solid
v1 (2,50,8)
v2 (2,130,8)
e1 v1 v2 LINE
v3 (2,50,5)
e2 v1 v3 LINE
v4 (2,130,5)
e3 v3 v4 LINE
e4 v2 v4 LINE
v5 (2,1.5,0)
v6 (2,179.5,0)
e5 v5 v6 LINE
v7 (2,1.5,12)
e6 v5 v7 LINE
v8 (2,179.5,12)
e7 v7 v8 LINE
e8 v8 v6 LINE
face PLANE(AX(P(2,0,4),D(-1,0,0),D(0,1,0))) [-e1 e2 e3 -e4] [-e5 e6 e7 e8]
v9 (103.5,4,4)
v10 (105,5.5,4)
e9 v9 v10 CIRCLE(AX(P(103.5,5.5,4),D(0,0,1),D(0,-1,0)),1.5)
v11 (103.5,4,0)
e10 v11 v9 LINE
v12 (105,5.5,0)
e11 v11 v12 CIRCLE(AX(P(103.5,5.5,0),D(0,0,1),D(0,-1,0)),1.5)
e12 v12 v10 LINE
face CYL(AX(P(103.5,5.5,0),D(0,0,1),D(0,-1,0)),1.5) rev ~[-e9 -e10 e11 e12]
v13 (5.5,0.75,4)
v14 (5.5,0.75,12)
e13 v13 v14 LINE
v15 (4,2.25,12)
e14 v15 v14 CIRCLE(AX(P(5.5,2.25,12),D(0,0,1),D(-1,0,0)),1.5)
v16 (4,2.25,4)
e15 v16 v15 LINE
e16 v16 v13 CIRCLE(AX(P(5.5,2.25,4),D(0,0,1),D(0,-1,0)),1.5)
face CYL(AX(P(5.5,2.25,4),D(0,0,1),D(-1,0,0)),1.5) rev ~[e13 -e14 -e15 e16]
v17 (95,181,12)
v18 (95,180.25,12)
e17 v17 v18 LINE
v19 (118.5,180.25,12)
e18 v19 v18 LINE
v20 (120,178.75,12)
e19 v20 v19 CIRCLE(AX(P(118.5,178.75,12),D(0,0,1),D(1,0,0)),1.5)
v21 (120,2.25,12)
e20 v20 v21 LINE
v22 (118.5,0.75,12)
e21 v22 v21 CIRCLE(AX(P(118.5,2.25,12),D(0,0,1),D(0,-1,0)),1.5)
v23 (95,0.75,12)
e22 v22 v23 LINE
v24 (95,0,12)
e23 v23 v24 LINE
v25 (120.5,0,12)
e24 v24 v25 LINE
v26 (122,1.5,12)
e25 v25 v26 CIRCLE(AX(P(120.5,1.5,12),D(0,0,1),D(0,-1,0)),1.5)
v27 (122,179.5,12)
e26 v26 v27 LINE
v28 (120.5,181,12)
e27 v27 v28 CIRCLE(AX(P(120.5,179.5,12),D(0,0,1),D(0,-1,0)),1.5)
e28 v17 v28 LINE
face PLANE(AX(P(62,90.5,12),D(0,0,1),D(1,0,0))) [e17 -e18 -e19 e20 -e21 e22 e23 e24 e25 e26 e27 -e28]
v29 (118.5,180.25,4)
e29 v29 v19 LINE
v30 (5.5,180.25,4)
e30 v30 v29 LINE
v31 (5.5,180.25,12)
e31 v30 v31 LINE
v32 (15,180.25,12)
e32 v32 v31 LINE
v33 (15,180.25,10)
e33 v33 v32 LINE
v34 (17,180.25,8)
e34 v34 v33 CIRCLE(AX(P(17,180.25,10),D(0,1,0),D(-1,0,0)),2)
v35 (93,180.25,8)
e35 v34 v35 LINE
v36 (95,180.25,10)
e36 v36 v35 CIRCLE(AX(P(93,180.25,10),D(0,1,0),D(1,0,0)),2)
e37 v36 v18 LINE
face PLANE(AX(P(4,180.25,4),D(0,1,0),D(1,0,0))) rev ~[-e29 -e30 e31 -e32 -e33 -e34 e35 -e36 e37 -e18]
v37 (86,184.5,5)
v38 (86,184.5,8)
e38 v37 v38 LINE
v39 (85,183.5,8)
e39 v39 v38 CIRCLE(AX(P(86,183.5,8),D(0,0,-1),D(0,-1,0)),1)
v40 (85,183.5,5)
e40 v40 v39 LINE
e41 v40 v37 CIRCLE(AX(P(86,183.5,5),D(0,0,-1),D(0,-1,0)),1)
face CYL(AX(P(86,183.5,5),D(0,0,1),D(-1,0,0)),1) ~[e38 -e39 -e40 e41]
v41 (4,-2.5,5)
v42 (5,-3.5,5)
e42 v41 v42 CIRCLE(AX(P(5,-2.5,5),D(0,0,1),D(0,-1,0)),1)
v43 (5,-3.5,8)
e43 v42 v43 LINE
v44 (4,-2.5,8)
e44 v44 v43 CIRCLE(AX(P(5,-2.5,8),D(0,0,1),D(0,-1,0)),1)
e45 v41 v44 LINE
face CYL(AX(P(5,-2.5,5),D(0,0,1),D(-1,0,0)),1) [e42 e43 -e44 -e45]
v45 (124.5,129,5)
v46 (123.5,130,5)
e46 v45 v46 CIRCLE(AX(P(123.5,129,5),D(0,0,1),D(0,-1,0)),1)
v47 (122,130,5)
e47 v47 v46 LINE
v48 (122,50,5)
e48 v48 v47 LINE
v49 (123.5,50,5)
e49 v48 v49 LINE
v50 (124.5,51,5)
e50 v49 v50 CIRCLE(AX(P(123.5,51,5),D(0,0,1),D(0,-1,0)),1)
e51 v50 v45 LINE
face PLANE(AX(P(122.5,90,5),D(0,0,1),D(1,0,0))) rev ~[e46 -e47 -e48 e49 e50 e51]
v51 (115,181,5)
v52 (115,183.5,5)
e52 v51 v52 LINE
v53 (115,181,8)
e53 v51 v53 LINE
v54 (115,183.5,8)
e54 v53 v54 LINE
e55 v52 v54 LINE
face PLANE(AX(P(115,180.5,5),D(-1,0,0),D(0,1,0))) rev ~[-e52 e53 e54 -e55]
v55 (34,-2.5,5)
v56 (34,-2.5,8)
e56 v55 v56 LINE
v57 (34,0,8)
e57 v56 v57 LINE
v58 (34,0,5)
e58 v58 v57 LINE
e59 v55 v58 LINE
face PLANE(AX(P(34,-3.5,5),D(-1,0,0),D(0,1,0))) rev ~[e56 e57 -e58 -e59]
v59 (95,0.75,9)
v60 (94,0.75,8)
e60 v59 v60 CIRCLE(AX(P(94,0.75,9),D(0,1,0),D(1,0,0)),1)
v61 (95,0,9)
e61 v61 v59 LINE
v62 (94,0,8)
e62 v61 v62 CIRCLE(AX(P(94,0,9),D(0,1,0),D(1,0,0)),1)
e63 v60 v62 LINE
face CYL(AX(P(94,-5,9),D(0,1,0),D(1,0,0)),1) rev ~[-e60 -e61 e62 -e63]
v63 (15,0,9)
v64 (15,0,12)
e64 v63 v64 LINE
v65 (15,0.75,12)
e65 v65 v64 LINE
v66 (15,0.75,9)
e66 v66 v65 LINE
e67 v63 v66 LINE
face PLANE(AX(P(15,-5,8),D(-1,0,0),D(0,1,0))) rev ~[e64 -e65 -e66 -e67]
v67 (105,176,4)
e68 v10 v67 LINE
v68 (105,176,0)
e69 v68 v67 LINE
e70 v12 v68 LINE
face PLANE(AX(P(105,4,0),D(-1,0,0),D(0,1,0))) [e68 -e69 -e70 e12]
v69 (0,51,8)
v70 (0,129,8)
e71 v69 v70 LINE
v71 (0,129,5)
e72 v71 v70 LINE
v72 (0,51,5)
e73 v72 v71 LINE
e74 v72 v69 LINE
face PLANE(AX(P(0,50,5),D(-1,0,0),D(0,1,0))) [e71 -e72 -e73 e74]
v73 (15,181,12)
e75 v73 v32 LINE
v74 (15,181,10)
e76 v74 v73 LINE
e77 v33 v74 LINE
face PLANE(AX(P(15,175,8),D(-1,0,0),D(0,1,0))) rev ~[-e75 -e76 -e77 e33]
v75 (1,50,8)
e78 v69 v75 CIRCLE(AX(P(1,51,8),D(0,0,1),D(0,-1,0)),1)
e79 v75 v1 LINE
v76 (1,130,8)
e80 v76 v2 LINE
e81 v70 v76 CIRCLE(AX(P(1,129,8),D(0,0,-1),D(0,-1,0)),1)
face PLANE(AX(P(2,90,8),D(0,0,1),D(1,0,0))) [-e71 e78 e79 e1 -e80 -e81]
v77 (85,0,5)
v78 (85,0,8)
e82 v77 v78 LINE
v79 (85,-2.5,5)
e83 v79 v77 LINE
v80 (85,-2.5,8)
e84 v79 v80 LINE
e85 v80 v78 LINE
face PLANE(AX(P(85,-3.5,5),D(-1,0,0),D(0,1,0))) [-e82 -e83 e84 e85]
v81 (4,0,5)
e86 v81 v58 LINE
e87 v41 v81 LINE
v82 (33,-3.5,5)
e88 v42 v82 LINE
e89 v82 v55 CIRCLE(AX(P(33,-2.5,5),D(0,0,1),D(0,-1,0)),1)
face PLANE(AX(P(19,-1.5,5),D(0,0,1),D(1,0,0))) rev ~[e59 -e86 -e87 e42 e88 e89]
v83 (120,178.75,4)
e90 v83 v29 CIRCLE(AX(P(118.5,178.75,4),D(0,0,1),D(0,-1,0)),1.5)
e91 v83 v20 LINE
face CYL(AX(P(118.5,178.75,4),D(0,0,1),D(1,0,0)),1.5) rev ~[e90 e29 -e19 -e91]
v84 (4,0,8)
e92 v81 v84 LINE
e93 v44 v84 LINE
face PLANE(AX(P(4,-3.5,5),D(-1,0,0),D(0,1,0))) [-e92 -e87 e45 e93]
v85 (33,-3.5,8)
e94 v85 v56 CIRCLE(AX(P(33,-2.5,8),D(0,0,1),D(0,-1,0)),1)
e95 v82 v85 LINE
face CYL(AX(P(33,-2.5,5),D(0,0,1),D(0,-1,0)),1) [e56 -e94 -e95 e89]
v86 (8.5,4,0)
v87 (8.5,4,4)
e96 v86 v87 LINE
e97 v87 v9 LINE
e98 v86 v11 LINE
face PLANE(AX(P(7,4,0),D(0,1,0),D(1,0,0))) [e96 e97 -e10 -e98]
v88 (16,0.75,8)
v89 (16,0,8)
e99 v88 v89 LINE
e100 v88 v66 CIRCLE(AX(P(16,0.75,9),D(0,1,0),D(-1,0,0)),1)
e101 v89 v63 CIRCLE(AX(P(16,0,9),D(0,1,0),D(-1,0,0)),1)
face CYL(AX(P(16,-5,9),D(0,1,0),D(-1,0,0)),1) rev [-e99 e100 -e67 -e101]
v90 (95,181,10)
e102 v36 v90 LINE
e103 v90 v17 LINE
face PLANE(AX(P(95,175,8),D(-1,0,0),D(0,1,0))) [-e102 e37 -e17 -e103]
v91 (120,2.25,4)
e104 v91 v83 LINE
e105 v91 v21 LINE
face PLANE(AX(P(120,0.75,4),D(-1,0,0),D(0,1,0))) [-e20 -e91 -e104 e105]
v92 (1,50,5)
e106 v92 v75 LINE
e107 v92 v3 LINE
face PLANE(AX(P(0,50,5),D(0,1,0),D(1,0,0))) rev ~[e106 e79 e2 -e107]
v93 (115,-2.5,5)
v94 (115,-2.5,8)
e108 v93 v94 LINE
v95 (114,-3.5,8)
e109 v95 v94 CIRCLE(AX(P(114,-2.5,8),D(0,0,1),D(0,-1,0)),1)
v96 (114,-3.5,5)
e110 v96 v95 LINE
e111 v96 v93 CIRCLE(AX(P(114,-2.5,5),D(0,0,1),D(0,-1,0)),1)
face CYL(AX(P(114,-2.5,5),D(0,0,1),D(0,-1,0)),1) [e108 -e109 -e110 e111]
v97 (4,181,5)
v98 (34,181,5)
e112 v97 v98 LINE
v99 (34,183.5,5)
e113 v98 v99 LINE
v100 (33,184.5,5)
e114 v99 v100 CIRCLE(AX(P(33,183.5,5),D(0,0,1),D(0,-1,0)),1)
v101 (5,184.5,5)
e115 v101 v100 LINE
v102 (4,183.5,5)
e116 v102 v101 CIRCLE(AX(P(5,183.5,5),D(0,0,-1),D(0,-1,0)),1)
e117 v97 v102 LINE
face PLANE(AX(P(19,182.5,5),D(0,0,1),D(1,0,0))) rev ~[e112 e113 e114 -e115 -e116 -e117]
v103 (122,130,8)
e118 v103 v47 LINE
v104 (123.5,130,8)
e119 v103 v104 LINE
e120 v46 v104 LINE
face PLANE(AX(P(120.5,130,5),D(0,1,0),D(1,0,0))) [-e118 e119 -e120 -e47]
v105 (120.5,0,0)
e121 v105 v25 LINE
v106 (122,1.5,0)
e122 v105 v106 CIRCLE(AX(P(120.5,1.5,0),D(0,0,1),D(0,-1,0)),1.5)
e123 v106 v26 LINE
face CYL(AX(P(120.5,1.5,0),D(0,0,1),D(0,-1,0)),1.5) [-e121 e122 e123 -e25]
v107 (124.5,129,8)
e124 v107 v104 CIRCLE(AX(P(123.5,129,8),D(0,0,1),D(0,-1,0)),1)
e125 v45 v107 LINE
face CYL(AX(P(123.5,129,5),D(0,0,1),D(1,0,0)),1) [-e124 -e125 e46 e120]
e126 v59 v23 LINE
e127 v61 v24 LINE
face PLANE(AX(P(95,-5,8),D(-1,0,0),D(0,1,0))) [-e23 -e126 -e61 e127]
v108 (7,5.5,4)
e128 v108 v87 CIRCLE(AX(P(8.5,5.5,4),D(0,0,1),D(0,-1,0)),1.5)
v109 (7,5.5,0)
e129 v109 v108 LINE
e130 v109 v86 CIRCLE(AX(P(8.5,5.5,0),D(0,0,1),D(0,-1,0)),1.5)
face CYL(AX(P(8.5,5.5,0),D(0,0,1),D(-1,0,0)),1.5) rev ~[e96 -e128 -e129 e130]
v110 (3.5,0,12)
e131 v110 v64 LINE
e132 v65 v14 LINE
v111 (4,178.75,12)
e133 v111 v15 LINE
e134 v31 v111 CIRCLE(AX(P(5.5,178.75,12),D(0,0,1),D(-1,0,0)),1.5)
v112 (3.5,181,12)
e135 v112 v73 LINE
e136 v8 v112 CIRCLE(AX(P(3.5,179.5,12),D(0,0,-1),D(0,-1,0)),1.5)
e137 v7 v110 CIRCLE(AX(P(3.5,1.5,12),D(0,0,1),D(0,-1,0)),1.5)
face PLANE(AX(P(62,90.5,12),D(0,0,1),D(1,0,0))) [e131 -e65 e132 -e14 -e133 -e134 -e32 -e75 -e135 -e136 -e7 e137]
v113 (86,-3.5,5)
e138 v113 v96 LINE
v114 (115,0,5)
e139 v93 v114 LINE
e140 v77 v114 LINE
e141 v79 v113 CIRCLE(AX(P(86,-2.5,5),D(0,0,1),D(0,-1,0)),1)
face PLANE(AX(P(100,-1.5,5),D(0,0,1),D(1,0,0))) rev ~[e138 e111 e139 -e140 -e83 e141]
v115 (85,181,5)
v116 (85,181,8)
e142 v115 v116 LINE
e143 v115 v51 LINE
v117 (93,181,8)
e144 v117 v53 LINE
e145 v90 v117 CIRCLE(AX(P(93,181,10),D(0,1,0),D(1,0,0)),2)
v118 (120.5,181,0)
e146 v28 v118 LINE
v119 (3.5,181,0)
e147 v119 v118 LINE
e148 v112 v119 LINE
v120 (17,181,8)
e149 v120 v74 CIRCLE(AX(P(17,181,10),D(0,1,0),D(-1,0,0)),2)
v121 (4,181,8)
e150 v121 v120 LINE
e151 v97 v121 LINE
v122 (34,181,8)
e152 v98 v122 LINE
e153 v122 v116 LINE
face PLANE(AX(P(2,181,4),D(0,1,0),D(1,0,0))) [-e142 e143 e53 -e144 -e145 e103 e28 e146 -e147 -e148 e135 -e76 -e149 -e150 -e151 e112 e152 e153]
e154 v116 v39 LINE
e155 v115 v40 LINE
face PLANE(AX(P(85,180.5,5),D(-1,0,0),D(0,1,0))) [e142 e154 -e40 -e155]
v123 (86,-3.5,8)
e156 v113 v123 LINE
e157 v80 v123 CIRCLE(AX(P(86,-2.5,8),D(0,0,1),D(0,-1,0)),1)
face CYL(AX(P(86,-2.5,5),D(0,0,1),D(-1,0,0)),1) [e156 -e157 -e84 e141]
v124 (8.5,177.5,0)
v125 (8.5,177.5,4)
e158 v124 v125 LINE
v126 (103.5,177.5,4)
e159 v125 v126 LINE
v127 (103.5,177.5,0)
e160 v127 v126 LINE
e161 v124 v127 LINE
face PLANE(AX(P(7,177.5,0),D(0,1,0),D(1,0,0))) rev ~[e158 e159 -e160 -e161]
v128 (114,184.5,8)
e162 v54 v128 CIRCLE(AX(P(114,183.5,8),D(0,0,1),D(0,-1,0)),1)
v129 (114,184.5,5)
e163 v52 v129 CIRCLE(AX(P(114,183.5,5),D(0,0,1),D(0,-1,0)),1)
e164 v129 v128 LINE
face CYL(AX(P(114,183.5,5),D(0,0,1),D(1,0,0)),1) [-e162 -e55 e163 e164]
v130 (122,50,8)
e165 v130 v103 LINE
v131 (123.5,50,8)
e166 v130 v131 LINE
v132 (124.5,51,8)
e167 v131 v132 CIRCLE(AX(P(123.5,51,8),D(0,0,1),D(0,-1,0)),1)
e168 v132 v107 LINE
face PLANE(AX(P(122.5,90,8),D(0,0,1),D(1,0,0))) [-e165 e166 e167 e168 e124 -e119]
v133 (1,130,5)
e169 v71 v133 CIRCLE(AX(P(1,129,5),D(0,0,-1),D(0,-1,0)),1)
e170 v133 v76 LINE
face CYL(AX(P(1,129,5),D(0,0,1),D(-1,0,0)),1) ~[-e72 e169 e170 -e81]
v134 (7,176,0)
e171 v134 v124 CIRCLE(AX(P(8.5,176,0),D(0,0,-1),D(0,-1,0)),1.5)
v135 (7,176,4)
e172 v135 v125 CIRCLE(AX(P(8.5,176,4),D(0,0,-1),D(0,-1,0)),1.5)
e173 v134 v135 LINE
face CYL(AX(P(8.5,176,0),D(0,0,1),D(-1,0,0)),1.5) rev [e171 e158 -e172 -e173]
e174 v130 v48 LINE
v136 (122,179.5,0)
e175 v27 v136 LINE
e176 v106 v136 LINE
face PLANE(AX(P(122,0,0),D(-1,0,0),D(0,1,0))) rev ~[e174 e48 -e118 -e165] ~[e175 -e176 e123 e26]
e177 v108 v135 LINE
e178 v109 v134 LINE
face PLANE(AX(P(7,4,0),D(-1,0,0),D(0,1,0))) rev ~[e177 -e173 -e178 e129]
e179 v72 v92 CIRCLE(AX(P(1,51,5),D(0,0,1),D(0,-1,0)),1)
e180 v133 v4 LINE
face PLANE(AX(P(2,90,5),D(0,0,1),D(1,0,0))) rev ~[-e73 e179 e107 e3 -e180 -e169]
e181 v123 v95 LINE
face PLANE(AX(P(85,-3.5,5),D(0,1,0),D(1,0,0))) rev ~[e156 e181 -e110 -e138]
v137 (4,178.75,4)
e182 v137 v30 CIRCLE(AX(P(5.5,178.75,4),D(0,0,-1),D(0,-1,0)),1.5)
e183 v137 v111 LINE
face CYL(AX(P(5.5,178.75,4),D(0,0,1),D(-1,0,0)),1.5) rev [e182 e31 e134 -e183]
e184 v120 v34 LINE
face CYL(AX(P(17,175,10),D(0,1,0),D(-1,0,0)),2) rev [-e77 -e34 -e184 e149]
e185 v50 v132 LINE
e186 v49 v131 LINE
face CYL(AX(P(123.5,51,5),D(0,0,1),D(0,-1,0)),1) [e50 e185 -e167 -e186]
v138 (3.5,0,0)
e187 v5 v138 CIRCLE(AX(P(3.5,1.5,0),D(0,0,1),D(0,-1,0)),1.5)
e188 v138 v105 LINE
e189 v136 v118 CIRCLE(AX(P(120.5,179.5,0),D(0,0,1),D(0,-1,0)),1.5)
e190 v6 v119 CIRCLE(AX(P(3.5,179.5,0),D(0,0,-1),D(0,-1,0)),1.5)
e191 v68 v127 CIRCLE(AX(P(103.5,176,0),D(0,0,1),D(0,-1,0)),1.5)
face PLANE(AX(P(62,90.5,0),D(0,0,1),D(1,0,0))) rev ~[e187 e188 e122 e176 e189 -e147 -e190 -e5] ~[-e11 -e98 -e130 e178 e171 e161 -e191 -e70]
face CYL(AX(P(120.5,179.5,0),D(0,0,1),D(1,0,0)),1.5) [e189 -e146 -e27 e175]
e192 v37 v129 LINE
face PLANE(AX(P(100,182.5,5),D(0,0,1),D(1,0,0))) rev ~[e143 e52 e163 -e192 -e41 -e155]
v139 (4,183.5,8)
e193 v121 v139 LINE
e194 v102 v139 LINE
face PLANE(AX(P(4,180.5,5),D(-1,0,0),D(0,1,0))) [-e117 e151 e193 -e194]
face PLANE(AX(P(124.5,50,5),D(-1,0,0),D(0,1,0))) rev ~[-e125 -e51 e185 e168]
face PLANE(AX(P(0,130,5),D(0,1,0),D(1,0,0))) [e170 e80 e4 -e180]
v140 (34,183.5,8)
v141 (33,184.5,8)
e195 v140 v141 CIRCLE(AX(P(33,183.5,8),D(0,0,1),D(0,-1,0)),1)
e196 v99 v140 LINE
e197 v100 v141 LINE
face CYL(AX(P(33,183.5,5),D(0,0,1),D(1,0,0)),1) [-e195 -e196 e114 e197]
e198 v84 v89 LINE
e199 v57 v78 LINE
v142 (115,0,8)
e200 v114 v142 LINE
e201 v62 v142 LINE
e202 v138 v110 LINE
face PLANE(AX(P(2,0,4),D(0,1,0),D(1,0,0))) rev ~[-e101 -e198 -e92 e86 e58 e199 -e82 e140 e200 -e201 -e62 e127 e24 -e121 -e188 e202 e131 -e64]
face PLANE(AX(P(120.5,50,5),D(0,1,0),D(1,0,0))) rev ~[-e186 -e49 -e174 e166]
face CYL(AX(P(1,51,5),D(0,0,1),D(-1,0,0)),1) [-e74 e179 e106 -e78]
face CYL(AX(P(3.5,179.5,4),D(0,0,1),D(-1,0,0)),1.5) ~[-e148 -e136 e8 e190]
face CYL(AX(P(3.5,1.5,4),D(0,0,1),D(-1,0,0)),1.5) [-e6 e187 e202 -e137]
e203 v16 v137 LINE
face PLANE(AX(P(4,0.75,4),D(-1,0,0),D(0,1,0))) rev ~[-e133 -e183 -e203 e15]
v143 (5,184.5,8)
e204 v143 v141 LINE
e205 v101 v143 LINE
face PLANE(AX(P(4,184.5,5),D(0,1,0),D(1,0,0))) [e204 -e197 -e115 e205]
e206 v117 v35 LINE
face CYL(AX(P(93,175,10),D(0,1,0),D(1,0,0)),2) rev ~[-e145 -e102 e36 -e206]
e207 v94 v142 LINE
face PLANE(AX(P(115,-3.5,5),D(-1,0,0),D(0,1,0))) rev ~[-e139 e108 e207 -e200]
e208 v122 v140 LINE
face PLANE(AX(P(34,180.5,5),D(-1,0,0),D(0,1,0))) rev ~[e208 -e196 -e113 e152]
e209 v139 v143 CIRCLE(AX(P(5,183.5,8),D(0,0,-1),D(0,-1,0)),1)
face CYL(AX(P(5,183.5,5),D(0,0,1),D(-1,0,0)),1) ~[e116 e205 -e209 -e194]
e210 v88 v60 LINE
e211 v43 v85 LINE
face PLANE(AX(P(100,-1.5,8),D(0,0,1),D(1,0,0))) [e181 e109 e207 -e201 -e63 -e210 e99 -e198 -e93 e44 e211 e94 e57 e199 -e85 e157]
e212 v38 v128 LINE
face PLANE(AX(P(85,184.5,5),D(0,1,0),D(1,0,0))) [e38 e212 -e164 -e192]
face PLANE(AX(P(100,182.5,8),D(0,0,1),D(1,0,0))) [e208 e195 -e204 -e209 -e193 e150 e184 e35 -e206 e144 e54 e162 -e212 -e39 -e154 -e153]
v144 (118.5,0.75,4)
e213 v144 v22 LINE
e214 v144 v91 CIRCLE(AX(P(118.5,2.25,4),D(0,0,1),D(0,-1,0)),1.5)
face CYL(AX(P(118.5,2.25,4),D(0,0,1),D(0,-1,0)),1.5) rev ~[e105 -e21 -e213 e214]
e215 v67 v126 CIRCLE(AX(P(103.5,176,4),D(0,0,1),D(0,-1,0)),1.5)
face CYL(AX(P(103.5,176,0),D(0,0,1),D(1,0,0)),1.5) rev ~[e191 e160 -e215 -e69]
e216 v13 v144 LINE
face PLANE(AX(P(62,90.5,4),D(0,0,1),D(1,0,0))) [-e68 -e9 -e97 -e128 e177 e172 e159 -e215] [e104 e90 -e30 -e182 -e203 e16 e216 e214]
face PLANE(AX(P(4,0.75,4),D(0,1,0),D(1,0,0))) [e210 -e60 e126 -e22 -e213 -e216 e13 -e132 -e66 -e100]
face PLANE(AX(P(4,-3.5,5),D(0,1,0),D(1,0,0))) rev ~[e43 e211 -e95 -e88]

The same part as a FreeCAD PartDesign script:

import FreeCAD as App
import Part
import Sketcher


def edges_at(feature, points):
    """Names of the edges that pass closest to the given points."""
    edges = feature.Shape.Edges
    near = lambda p: min(range(len(edges)), key=lambda i: edges[i].distToShape(Part.Vertex(*p))[0])
    return sorted({f"Edge{near(p) + 1}" for p in points})

doc = App.newDocument("Part")
body = doc.addObject("PartDesign::Body", "Body")

# Sketch on XY plane
sketch1 = body.newObject("Sketcher::SketchObject", "Sketch")
sketch1.AttachmentSupport = (doc.getObject("XY_Plane"), [""])
sketch1.MapMode = "FlatFace"
sketch1.AttachmentOffset = App.Placement(App.Vector(0, 0, 5), App.Rotation())
sketch1.addGeometry(Part.LineSegment(App.Vector(0, 130, 0), App.Vector(0, 50, 0)), False)
sketch1.addGeometry(Part.LineSegment(App.Vector(0, 50, 0), App.Vector(4, 50, 0)), False)
sketch1.addGeometry(Part.LineSegment(App.Vector(4, 50, 0), App.Vector(4, 130, 0)), False)
sketch1.addGeometry(Part.LineSegment(App.Vector(4, 130, 0), App.Vector(0, 130, 0)), False)
sketch1.addConstraint(Sketcher.Constraint("Coincident", 0, 2, 1, 1))
sketch1.addConstraint(Sketcher.Constraint("Coincident", 1, 2, 2, 1))
sketch1.addConstraint(Sketcher.Constraint("Coincident", 2, 2, 3, 1))
sketch1.addConstraint(Sketcher.Constraint("Coincident", 3, 2, 0, 1))
sketch1.addConstraint(Sketcher.Constraint("Vertical", 0))
sketch1.addConstraint(Sketcher.Constraint("Horizontal", 1))
sketch1.addConstraint(Sketcher.Constraint("Vertical", 2))
sketch1.addConstraint(Sketcher.Constraint("Horizontal", 3))
sketch1.addConstraint(Sketcher.Constraint("PointOnObject", 0, 2, -2))
sketch1.addConstraint(Sketcher.Constraint("DistanceX", 1, 1, 1, 2, 4.0))
sketch1.addConstraint(Sketcher.Constraint("DistanceY", 0, 2, 0, 1, 80.0))
sketch1.addConstraint(Sketcher.Constraint("DistanceY", -1, 1, 0, 2, 50.0))
pad1 = body.newObject("PartDesign::Pad", "Pad")
pad1.Profile = sketch1
pad1.Length = 3
doc.recompute()

fillet = body.newObject("PartDesign::Fillet", "Fillet")
fillet.Base = (pad1, edges_at(pad1, [(0, 50, 6.5), (0, 130, 6.5)]))
fillet.Radius = 1
body2 = doc.addObject("PartDesign::Body", "Body001")

# Sketch on XY plane
sketch2 = body2.newObject("Sketcher::SketchObject", "Sketch001")
sketch2.AttachmentSupport = (doc.getObject("XY_Plane001"), [""])
sketch2.MapMode = "FlatFace"
sketch2.AttachmentOffset = App.Placement(App.Vector(0, 0, 5), App.Rotation())
sketch2.addGeometry(Part.LineSegment(App.Vector(85, 0.5, 0), App.Vector(85, -3.5, 0)), False)
sketch2.addGeometry(Part.LineSegment(App.Vector(85, -3.5, 0), App.Vector(115, -3.5, 0)), False)
sketch2.addGeometry(Part.LineSegment(App.Vector(115, -3.5, 0), App.Vector(115, 0.5, 0)), False)
sketch2.addGeometry(Part.LineSegment(App.Vector(115, 0.5, 0), App.Vector(85, 0.5, 0)), False)
sketch2.addConstraint(Sketcher.Constraint("Coincident", 0, 2, 1, 1))
sketch2.addConstraint(Sketcher.Constraint("Coincident", 1, 2, 2, 1))
sketch2.addConstraint(Sketcher.Constraint("Coincident", 2, 2, 3, 1))
sketch2.addConstraint(Sketcher.Constraint("Coincident", 3, 2, 0, 1))
sketch2.addConstraint(Sketcher.Constraint("Vertical", 0))
sketch2.addConstraint(Sketcher.Constraint("Horizontal", 1))
sketch2.addConstraint(Sketcher.Constraint("Vertical", 2))
sketch2.addConstraint(Sketcher.Constraint("Horizontal", 3))
sketch2.addConstraint(Sketcher.Constraint("DistanceX", 1, 1, 1, 2, 30.0))
sketch2.addConstraint(Sketcher.Constraint("DistanceY", 0, 2, 0, 1, 4.0))
sketch2.addConstraint(Sketcher.Constraint("DistanceX", -1, 1, 0, 2, 85.0))
sketch2.addConstraint(Sketcher.Constraint("DistanceY", 0, 2, -1, 1, 3.5))
pad2 = body2.newObject("PartDesign::Pad", "Pad001")
pad2.Profile = sketch2
pad2.Length = 3
doc.recompute()

fillet2 = body2.newObject("PartDesign::Fillet", "Fillet001")
fillet2.Base = (pad2, edges_at(pad2, [(85, -3.5, 6.5), (115, -3.5, 6.5)]))
fillet2.Radius = 1
body3 = doc.addObject("PartDesign::Body", "Body002")

# Sketch on XY plane
sketch3 = body3.newObject("Sketcher::SketchObject", "Sketch002")
sketch3.AttachmentSupport = (doc.getObject("XY_Plane002"), [""])
sketch3.MapMode = "FlatFace"
sketch3.AttachmentOffset = App.Placement(App.Vector(0, 0, 5), App.Rotation())
sketch3.addGeometry(Part.LineSegment(App.Vector(4, 184.5, 0), App.Vector(4, 180.5, 0)), False)
sketch3.addGeometry(Part.LineSegment(App.Vector(4, 180.5, 0), App.Vector(34, 180.5, 0)), False)
sketch3.addGeometry(Part.LineSegment(App.Vector(34, 180.5, 0), App.Vector(34, 184.5, 0)), False)
sketch3.addGeometry(Part.LineSegment(App.Vector(34, 184.5, 0), App.Vector(4, 184.5, 0)), False)
sketch3.addConstraint(Sketcher.Constraint("Coincident", 0, 2, 1, 1))
sketch3.addConstraint(Sketcher.Constraint("Coincident", 1, 2, 2, 1))
sketch3.addConstraint(Sketcher.Constraint("Coincident", 2, 2, 3, 1))
sketch3.addConstraint(Sketcher.Constraint("Coincident", 3, 2, 0, 1))
sketch3.addConstraint(Sketcher.Constraint("Vertical", 0))
sketch3.addConstraint(Sketcher.Constraint("Horizontal", 1))
sketch3.addConstraint(Sketcher.Constraint("Vertical", 2))
sketch3.addConstraint(Sketcher.Constraint("Horizontal", 3))
sketch3.addConstraint(Sketcher.Constraint("DistanceX", 1, 1, 1, 2, 30.0))
sketch3.addConstraint(Sketcher.Constraint("DistanceY", 0, 2, 0, 1, 4.0))
sketch3.addConstraint(Sketcher.Constraint("DistanceX", -1, 1, 0, 2, 4.0))
sketch3.addConstraint(Sketcher.Constraint("DistanceY", -1, 1, 0, 2, 180.5))
pad3 = body3.newObject("PartDesign::Pad", "Pad002")
pad3.Profile = sketch3
pad3.Length = 3
doc.recompute()

fillet3 = body3.newObject("PartDesign::Fillet", "Fillet002")
fillet3.Base = (pad3, edges_at(pad3, [(4, 184.5, 6.5), (34, 184.5, 6.5)]))
fillet3.Radius = 1
body4 = doc.addObject("PartDesign::Body", "Body003")

# Sketch on XY plane
sketch4 = body4.newObject("Sketcher::SketchObject", "Sketch003")
sketch4.AttachmentSupport = (doc.getObject("XY_Plane003"), [""])
sketch4.MapMode = "FlatFace"
sketch4.AttachmentOffset = App.Placement(App.Vector(0, 0, 5), App.Rotation())
sketch4.addGeometry(Part.LineSegment(App.Vector(85, 184.5, 0), App.Vector(85, 180.5, 0)), False)
sketch4.addGeometry(Part.LineSegment(App.Vector(85, 180.5, 0), App.Vector(115, 180.5, 0)), False)
sketch4.addGeometry(Part.LineSegment(App.Vector(115, 180.5, 0), App.Vector(115, 184.5, 0)), False)
sketch4.addGeometry(Part.LineSegment(App.Vector(115, 184.5, 0), App.Vector(85, 184.5, 0)), False)
sketch4.addConstraint(Sketcher.Constraint("Coincident", 0, 2, 1, 1))
sketch4.addConstraint(Sketcher.Constraint("Coincident", 1, 2, 2, 1))
sketch4.addConstraint(Sketcher.Constraint("Coincident", 2, 2, 3, 1))
sketch4.addConstraint(Sketcher.Constraint("Coincident", 3, 2, 0, 1))
sketch4.addConstraint(Sketcher.Constraint("Vertical", 0))
sketch4.addConstraint(Sketcher.Constraint("Horizontal", 1))
sketch4.addConstraint(Sketcher.Constraint("Vertical", 2))
sketch4.addConstraint(Sketcher.Constraint("Horizontal", 3))
sketch4.addConstraint(Sketcher.Constraint("DistanceX", 1, 1, 1, 2, 30.0))
sketch4.addConstraint(Sketcher.Constraint("DistanceY", 0, 2, 0, 1, 4.0))
sketch4.addConstraint(Sketcher.Constraint("DistanceX", -1, 1, 0, 2, 85.0))
sketch4.addConstraint(Sketcher.Constraint("DistanceY", -1, 1, 0, 2, 180.5))
pad4 = body4.newObject("PartDesign::Pad", "Pad003")
pad4.Profile = sketch4
pad4.Length = 3
doc.recompute()

fillet4 = body4.newObject("PartDesign::Fillet", "Fillet003")
fillet4.Base = (pad4, edges_at(pad4, [(85, 184.5, 6.5), (115, 184.5, 6.5)]))
fillet4.Radius = 1
body5 = doc.addObject("PartDesign::Body", "Body004")

# Sketch on XY plane
sketch5 = body5.newObject("Sketcher::SketchObject", "Sketch004")
sketch5.AttachmentSupport = (doc.getObject("XY_Plane004"), [""])
sketch5.MapMode = "FlatFace"
sketch5.AttachmentOffset = App.Placement(App.Vector(0, 0, 5), App.Rotation())
sketch5.addGeometry(Part.LineSegment(App.Vector(120.5, 130, 0), App.Vector(120.5, 50, 0)), False)
sketch5.addGeometry(Part.LineSegment(App.Vector(120.5, 50, 0), App.Vector(124.5, 50, 0)), False)
sketch5.addGeometry(Part.LineSegment(App.Vector(124.5, 50, 0), App.Vector(124.5, 130, 0)), False)
sketch5.addGeometry(Part.LineSegment(App.Vector(124.5, 130, 0), App.Vector(120.5, 130, 0)), False)
sketch5.addConstraint(Sketcher.Constraint("Coincident", 0, 2, 1, 1))
sketch5.addConstraint(Sketcher.Constraint("Coincident", 1, 2, 2, 1))
sketch5.addConstraint(Sketcher.Constraint("Coincident", 2, 2, 3, 1))
sketch5.addConstraint(Sketcher.Constraint("Coincident", 3, 2, 0, 1))
sketch5.addConstraint(Sketcher.Constraint("Vertical", 0))
sketch5.addConstraint(Sketcher.Constraint("Horizontal", 1))
sketch5.addConstraint(Sketcher.Constraint("Vertical", 2))
sketch5.addConstraint(Sketcher.Constraint("Horizontal", 3))
sketch5.addConstraint(Sketcher.Constraint("DistanceX", 1, 1, 1, 2, 4.0))
sketch5.addConstraint(Sketcher.Constraint("DistanceY", 0, 2, 0, 1, 80.0))
sketch5.addConstraint(Sketcher.Constraint("DistanceY", -1, 1, 0, 2, 50.0))
sketch5.addConstraint(Sketcher.Constraint("DistanceX", -1, 1, 0, 2, 120.5))
pad5 = body5.newObject("PartDesign::Pad", "Pad004")
pad5.Profile = sketch5
pad5.Length = 3
doc.recompute()

fillet5 = body5.newObject("PartDesign::Fillet", "Fillet004")
fillet5.Base = (pad5, edges_at(pad5, [(124.5, 50, 6.5), (124.5, 130, 6.5)]))
fillet5.Radius = 1
body6 = doc.addObject("PartDesign::Body", "Body005")
body6.AllowCompound = True

# Sketch on XY plane
sketch6 = body6.newObject("Sketcher::SketchObject", "Sketch005")
sketch6.AttachmentSupport = (doc.getObject("XY_Plane005"), [""])
sketch6.MapMode = "FlatFace"
sketch6.AttachmentOffset = App.Placement(App.Vector(0, 0, 5), App.Rotation())
sketch6.addGeometry(Part.LineSegment(App.Vector(4, 0.5, 0), App.Vector(4, -3.5, 0)), False)
sketch6.addGeometry(Part.LineSegment(App.Vector(4, -3.5, 0), App.Vector(34, -3.5, 0)), False)
sketch6.addGeometry(Part.LineSegment(App.Vector(34, -3.5, 0), App.Vector(34, 0.5, 0)), False)
sketch6.addGeometry(Part.LineSegment(App.Vector(34, 0.5, 0), App.Vector(4, 0.5, 0)), False)
sketch6.addConstraint(Sketcher.Constraint("Coincident", 0, 2, 1, 1))
sketch6.addConstraint(Sketcher.Constraint("Coincident", 1, 2, 2, 1))
sketch6.addConstraint(Sketcher.Constraint("Coincident", 2, 2, 3, 1))
sketch6.addConstraint(Sketcher.Constraint("Coincident", 3, 2, 0, 1))
sketch6.addConstraint(Sketcher.Constraint("Vertical", 0))
sketch6.addConstraint(Sketcher.Constraint("Horizontal", 1))
sketch6.addConstraint(Sketcher.Constraint("Vertical", 2))
sketch6.addConstraint(Sketcher.Constraint("Horizontal", 3))
sketch6.addConstraint(Sketcher.Constraint("DistanceX", 1, 1, 1, 2, 30.0))
sketch6.addConstraint(Sketcher.Constraint("DistanceY", 0, 2, 0, 1, 4.0))
sketch6.addConstraint(Sketcher.Constraint("DistanceX", -1, 1, 0, 2, 4.0))
sketch6.addConstraint(Sketcher.Constraint("DistanceY", 0, 2, -1, 1, 3.5))
pad6 = body6.newObject("PartDesign::Pad", "Pad005")
pad6.Profile = sketch6
pad6.Length = 3
doc.recompute()

fillet6 = body6.newObject("PartDesign::Fillet", "Fillet005")
fillet6.Base = (pad6, edges_at(pad6, [(4, -3.5, 6.5), (34, -3.5, 6.5)]))
fillet6.Radius = 1
doc.recompute()

boolean = body6.newObject("PartDesign::Boolean", "Boolean")
boolean.Type = "Fuse"
boolean.addObjects([body])
doc.recompute()

boolean2 = body6.newObject("PartDesign::Boolean", "Boolean001")
boolean2.Type = "Fuse"
boolean2.addObjects([body2])
doc.recompute()

boolean3 = body6.newObject("PartDesign::Boolean", "Boolean002")
boolean3.Type = "Fuse"
boolean3.addObjects([body3])
doc.recompute()

boolean4 = body6.newObject("PartDesign::Boolean", "Boolean003")
boolean4.Type = "Fuse"
boolean4.addObjects([body4])
doc.recompute()

boolean5 = body6.newObject("PartDesign::Boolean", "Boolean004")
boolean5.Type = "Fuse"
boolean5.addObjects([body5])
body7 = doc.addObject("PartDesign::Body", "Body006")

# Sketch on XY plane
sketch7 = body7.newObject("Sketcher::SketchObject", "Sketch006")
sketch7.AttachmentSupport = (doc.getObject("XY_Plane006"), [""])
sketch7.MapMode = "FlatFace"
sketch7.addGeometry(Part.LineSegment(App.Vector(15, 5, 0), App.Vector(15, -5, 0)), False)
sketch7.addGeometry(Part.LineSegment(App.Vector(15, -5, 0), App.Vector(95, -5, 0)), False)
sketch7.addGeometry(Part.LineSegment(App.Vector(95, -5, 0), App.Vector(95, 5, 0)), False)
sketch7.addGeometry(Part.LineSegment(App.Vector(95, 5, 0), App.Vector(15, 5, 0)), False)
sketch7.addConstraint(Sketcher.Constraint("Coincident", 0, 2, 1, 1))
sketch7.addConstraint(Sketcher.Constraint("Coincident", 1, 2, 2, 1))
sketch7.addConstraint(Sketcher.Constraint("Coincident", 2, 2, 3, 1))
sketch7.addConstraint(Sketcher.Constraint("Coincident", 3, 2, 0, 1))
sketch7.addConstraint(Sketcher.Constraint("Vertical", 0))
sketch7.addConstraint(Sketcher.Constraint("Horizontal", 1))
sketch7.addConstraint(Sketcher.Constraint("Vertical", 2))
sketch7.addConstraint(Sketcher.Constraint("Horizontal", 3))
sketch7.addConstraint(Sketcher.Constraint("DistanceX", 1, 1, 1, 2, 80.0))
sketch7.addConstraint(Sketcher.Constraint("DistanceY", 0, 2, 0, 1, 10.0))
sketch7.addConstraint(Sketcher.Constraint("DistanceX", -1, 1, 0, 2, 15.0))
sketch7.addConstraint(Sketcher.Constraint("DistanceY", 0, 2, -1, 1, 5.0))
pad7 = body7.newObject("PartDesign::Pad", "Pad006")
pad7.Profile = sketch7
pad7.Length = 10
body8 = doc.addObject("PartDesign::Body", "Body007")
body8.AllowCompound = True

# Sketch on XY plane
sketch8 = body8.newObject("Sketcher::SketchObject", "Sketch007")
sketch8.AttachmentSupport = (doc.getObject("XY_Plane007"), [""])
sketch8.MapMode = "FlatFace"
sketch8.addGeometry(Part.LineSegment(App.Vector(15, 185, 0), App.Vector(15, 175, 0)), False)
sketch8.addGeometry(Part.LineSegment(App.Vector(15, 175, 0), App.Vector(95, 175, 0)), False)
sketch8.addGeometry(Part.LineSegment(App.Vector(95, 175, 0), App.Vector(95, 185, 0)), False)
sketch8.addGeometry(Part.LineSegment(App.Vector(95, 185, 0), App.Vector(15, 185, 0)), False)
sketch8.addConstraint(Sketcher.Constraint("Coincident", 0, 2, 1, 1))
sketch8.addConstraint(Sketcher.Constraint("Coincident", 1, 2, 2, 1))
sketch8.addConstraint(Sketcher.Constraint("Coincident", 2, 2, 3, 1))
sketch8.addConstraint(Sketcher.Constraint("Coincident", 3, 2, 0, 1))
sketch8.addConstraint(Sketcher.Constraint("Vertical", 0))
sketch8.addConstraint(Sketcher.Constraint("Horizontal", 1))
sketch8.addConstraint(Sketcher.Constraint("Vertical", 2))
sketch8.addConstraint(Sketcher.Constraint("Horizontal", 3))
sketch8.addConstraint(Sketcher.Constraint("DistanceX", 1, 1, 1, 2, 80.0))
sketch8.addConstraint(Sketcher.Constraint("DistanceY", 0, 2, 0, 1, 10.0))
sketch8.addConstraint(Sketcher.Constraint("DistanceX", -1, 1, 0, 2, 15.0))
sketch8.addConstraint(Sketcher.Constraint("DistanceY", -1, 1, 0, 2, 175.0))
pad8 = body8.newObject("PartDesign::Pad", "Pad007")
pad8.Profile = sketch8
pad8.Length = 10
doc.recompute()

boolean6 = body8.newObject("PartDesign::Boolean", "Boolean005")
boolean6.Type = "Fuse"
boolean6.addObjects([body7])
body9 = doc.addObject("PartDesign::Body", "Body008")
body9.AllowCompound = True
doc.recompute()

body8.Placement = App.Placement(App.Vector(0, 0, 8), App.Rotation(App.Vector(0, 0, 1), 0))
boolean7 = body9.newObject("PartDesign::Boolean", "Boolean006")
boolean7.Type = "Fuse"
boolean7.addObjects([body8])
doc.recompute()

fillet7 = body9.newObject("PartDesign::Fillet", "Fillet006")
fillet7.Base = (boolean7, edges_at(boolean7, [(15, 180, 8), (95, 180, 8)]))
fillet7.Radius = 2
doc.recompute()

fillet8 = body9.newObject("PartDesign::Fillet", "Fillet007")
fillet8.Base = (fillet7, edges_at(fillet7, [(15, 0, 8), (95, 0, 8)]))
fillet8.Radius = 1
body10 = doc.addObject("PartDesign::Body", "Body009")

# Sketch on XY plane
sketch9 = body10.newObject("Sketcher::SketchObject", "Sketch008")
sketch9.AttachmentSupport = (doc.getObject("XY_Plane009"), [""])
sketch9.MapMode = "FlatFace"
sketch9.AttachmentOffset = App.Placement(App.Vector(0, 0, 4), App.Rotation())
sketch9.addGeometry(Part.LineSegment(App.Vector(4, 180, 0), App.Vector(4, 1, 0)), False)
sketch9.addGeometry(Part.LineSegment(App.Vector(4, 1, 0), App.Vector(120, 1, 0)), False)
sketch9.addGeometry(Part.LineSegment(App.Vector(120, 1, 0), App.Vector(120, 180, 0)), False)
sketch9.addGeometry(Part.LineSegment(App.Vector(120, 180, 0), App.Vector(4, 180, 0)), False)
sketch9.addConstraint(Sketcher.Constraint("Coincident", 0, 2, 1, 1))
sketch9.addConstraint(Sketcher.Constraint("Coincident", 1, 2, 2, 1))
sketch9.addConstraint(Sketcher.Constraint("Coincident", 2, 2, 3, 1))
sketch9.addConstraint(Sketcher.Constraint("Coincident", 3, 2, 0, 1))
sketch9.addConstraint(Sketcher.Constraint("Vertical", 0))
sketch9.addConstraint(Sketcher.Constraint("Horizontal", 1))
sketch9.addConstraint(Sketcher.Constraint("Vertical", 2))
sketch9.addConstraint(Sketcher.Constraint("Horizontal", 3))
sketch9.addConstraint(Sketcher.Constraint("DistanceX", 1, 1, 1, 2, 116.0))
sketch9.addConstraint(Sketcher.Constraint("DistanceY", 0, 2, 0, 1, 179.5))
sketch9.addConstraint(Sketcher.Constraint("DistanceX", -1, 1, 0, 2, 4.0))
sketch9.addConstraint(Sketcher.Constraint("DistanceY", -1, 1, 0, 2, 0.75))
pad9 = body10.newObject("PartDesign::Pad", "Pad008")
pad9.Profile = sketch9
pad9.Length = 10
doc.recompute()

fillet9 = body10.newObject("PartDesign::Fillet", "Fillet008")
fillet9.Base = (pad9, edges_at(pad9, [
    (4, 0.75, 9),
    (4, 180.25, 9),
    (120, 0.75, 9),
    (120, 180.25, 9),
]))
fillet9.Radius = 1.5
body11 = doc.addObject("PartDesign::Body", "Body010")

# Sketch on XY plane
sketch10 = body11.newObject("Sketcher::SketchObject", "Sketch009")
sketch10.AttachmentSupport = (doc.getObject("XY_Plane010"), [""])
sketch10.MapMode = "FlatFace"
sketch10.AttachmentOffset = App.Placement(App.Vector(0, 0, 4), App.Rotation())
sketch10.addGeometry(Part.LineSegment(App.Vector(2, 181, 0), App.Vector(2, 0, 0)), False)
sketch10.addGeometry(Part.LineSegment(App.Vector(2, 0, 0), App.Vector(122, 0, 0)), False)
sketch10.addGeometry(Part.LineSegment(App.Vector(122, 0, 0), App.Vector(122, 181, 0)), False)
sketch10.addGeometry(Part.LineSegment(App.Vector(122, 181, 0), App.Vector(2, 181, 0)), False)
sketch10.addConstraint(Sketcher.Constraint("Coincident", 0, 2, 1, 1))
sketch10.addConstraint(Sketcher.Constraint("Coincident", 1, 2, 2, 1))
sketch10.addConstraint(Sketcher.Constraint("Coincident", 2, 2, 3, 1))
sketch10.addConstraint(Sketcher.Constraint("Coincident", 3, 2, 0, 1))
sketch10.addConstraint(Sketcher.Constraint("Vertical", 0))
sketch10.addConstraint(Sketcher.Constraint("Horizontal", 1))
sketch10.addConstraint(Sketcher.Constraint("Vertical", 2))
sketch10.addConstraint(Sketcher.Constraint("Horizontal", 3))
sketch10.addConstraint(Sketcher.Constraint("PointOnObject", 0, 2, -1))
sketch10.addConstraint(Sketcher.Constraint("DistanceX", 1, 1, 1, 2, 120.0))
sketch10.addConstraint(Sketcher.Constraint("DistanceY", 0, 2, 0, 1, 181.0))
sketch10.addConstraint(Sketcher.Constraint("DistanceX", -1, 1, 0, 2, 2.0))
pad10 = body11.newObject("PartDesign::Pad", "Pad009")
pad10.Profile = sketch10
pad10.Length = 8
doc.recompute()

fillet10 = body11.newObject("PartDesign::Fillet", "Fillet009")
fillet10.Base = (pad10, edges_at(pad10, [
    (2, 0, 8),
    (2, 181, 8),
    (122, 0, 8),
    (122, 181, 8),
]))
fillet10.Radius = 1.5
doc.recompute()

boolean8 = body11.newObject("PartDesign::Boolean", "Boolean007")
boolean8.Type = "Cut"
boolean8.addObjects([body10])
doc.recompute()

boolean9 = body11.newObject("PartDesign::Boolean", "Boolean008")
boolean9.Type = "Cut"
boolean9.addObjects([body9])
body12 = doc.addObject("PartDesign::Body", "Body011")

# Sketch on XY plane
sketch11 = body12.newObject("Sketcher::SketchObject", "Sketch010")
sketch11.AttachmentSupport = (doc.getObject("XY_Plane011"), [""])
sketch11.MapMode = "FlatFace"
sketch11.addGeometry(Part.LineSegment(App.Vector(7, 178, 0), App.Vector(7, 4, 0)), False)
sketch11.addGeometry(Part.LineSegment(App.Vector(7, 4, 0), App.Vector(105, 4, 0)), False)
sketch11.addGeometry(Part.LineSegment(App.Vector(105, 4, 0), App.Vector(105, 178, 0)), False)
sketch11.addGeometry(Part.LineSegment(App.Vector(105, 178, 0), App.Vector(7, 178, 0)), False)
sketch11.addConstraint(Sketcher.Constraint("Coincident", 0, 2, 1, 1))
sketch11.addConstraint(Sketcher.Constraint("Coincident", 1, 2, 2, 1))
sketch11.addConstraint(Sketcher.Constraint("Coincident", 2, 2, 3, 1))
sketch11.addConstraint(Sketcher.Constraint("Coincident", 3, 2, 0, 1))
sketch11.addConstraint(Sketcher.Constraint("Vertical", 0))
sketch11.addConstraint(Sketcher.Constraint("Horizontal", 1))
sketch11.addConstraint(Sketcher.Constraint("Vertical", 2))
sketch11.addConstraint(Sketcher.Constraint("Horizontal", 3))
sketch11.addConstraint(Sketcher.Constraint("DistanceX", 1, 1, 1, 2, 98.0))
sketch11.addConstraint(Sketcher.Constraint("DistanceY", 0, 2, 0, 1, 173.5))
sketch11.addConstraint(Sketcher.Constraint("DistanceX", -1, 1, 0, 2, 7.0))
sketch11.addConstraint(Sketcher.Constraint("DistanceY", -1, 1, 0, 2, 4.0))
pad11 = body12.newObject("PartDesign::Pad", "Pad010")
pad11.Profile = sketch11
pad11.Length = 4
doc.recompute()

fillet11 = body12.newObject("PartDesign::Fillet", "Fillet010")
fillet11.Base = (pad11, edges_at(pad11, [
    (7, 4, 2),
    (7, 177.5, 2),
    (105, 4, 2),
    (105, 177.5, 2),
]))
fillet11.Radius = 1.5
body13 = doc.addObject("PartDesign::Body", "Body012")

# Sketch on XY plane
sketch12 = body13.newObject("Sketcher::SketchObject", "Sketch011")
sketch12.AttachmentSupport = (doc.getObject("XY_Plane012"), [""])
sketch12.MapMode = "FlatFace"
sketch12.addGeometry(Part.LineSegment(App.Vector(2, 181, 0), App.Vector(2, 0, 0)), False)
sketch12.addGeometry(Part.LineSegment(App.Vector(2, 0, 0), App.Vector(122, 0, 0)), False)
sketch12.addGeometry(Part.LineSegment(App.Vector(122, 0, 0), App.Vector(122, 181, 0)), False)
sketch12.addGeometry(Part.LineSegment(App.Vector(122, 181, 0), App.Vector(2, 181, 0)), False)
sketch12.addConstraint(Sketcher.Constraint("Coincident", 0, 2, 1, 1))
sketch12.addConstraint(Sketcher.Constraint("Coincident", 1, 2, 2, 1))
sketch12.addConstraint(Sketcher.Constraint("Coincident", 2, 2, 3, 1))
sketch12.addConstraint(Sketcher.Constraint("Coincident", 3, 2, 0, 1))
sketch12.addConstraint(Sketcher.Constraint("Vertical", 0))
sketch12.addConstraint(Sketcher.Constraint("Horizontal", 1))
sketch12.addConstraint(Sketcher.Constraint("Vertical", 2))
sketch12.addConstraint(Sketcher.Constraint("Horizontal", 3))
sketch12.addConstraint(Sketcher.Constraint("PointOnObject", 0, 2, -1))
sketch12.addConstraint(Sketcher.Constraint("DistanceX", 1, 1, 1, 2, 120.0))
sketch12.addConstraint(Sketcher.Constraint("DistanceY", 0, 2, 0, 1, 181.0))
sketch12.addConstraint(Sketcher.Constraint("DistanceX", -1, 1, 0, 2, 2.0))
pad12 = body13.newObject("PartDesign::Pad", "Pad011")
pad12.Profile = sketch12
pad12.Length = 4
doc.recompute()

fillet12 = body13.newObject("PartDesign::Fillet", "Fillet011")
fillet12.Base = (pad12, edges_at(pad12, [
    (2, 0, 2),
    (2, 181, 2),
    (122, 0, 2),
    (122, 181, 2),
]))
fillet12.Radius = 1.5
doc.recompute()

boolean10 = body13.newObject("PartDesign::Boolean", "Boolean009")
boolean10.Type = "Cut"
boolean10.addObjects([body12])
doc.recompute()

boolean11 = body13.newObject("PartDesign::Boolean", "Boolean010")
boolean11.Type = "Fuse"
boolean11.addObjects([body11])
doc.recompute()

boolean12 = body13.newObject("PartDesign::Boolean", "Boolean011")
boolean12.Type = "Fuse"
boolean12.addObjects([body6])

doc.recompute()
